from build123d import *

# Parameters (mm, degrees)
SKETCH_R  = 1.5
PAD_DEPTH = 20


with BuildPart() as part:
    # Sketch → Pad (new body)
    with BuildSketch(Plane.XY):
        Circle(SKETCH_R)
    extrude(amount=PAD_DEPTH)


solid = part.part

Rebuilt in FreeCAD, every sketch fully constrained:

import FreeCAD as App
import Part
import Sketcher
from FreeCAD import Vector

doc = App.newDocument("Part")
body = doc.addObject("PartDesign::Body", "Body")

sketch1 = body.newObject("Sketcher::SketchObject", "Sketch")
sketch1.AttachmentSupport = (doc.getObject("XY_Plane"), [""])
sketch1.MapMode = "FlatFace"
sketch1.addGeometry(Part.Circle(Vector(0, 0, 0), Vector(0, 0, 1), 1.5), False)
sketch1.addConstraint(Sketcher.Constraint("Coincident", 0, 3, -1, 1))
sketch1.addConstraint(Sketcher.Constraint("Diameter", 0, 3.0))
pad1 = body.newObject("PartDesign::Pad", "Pad")
pad1.Profile = sketch1
pad1.Length = 20

doc.recompute()
